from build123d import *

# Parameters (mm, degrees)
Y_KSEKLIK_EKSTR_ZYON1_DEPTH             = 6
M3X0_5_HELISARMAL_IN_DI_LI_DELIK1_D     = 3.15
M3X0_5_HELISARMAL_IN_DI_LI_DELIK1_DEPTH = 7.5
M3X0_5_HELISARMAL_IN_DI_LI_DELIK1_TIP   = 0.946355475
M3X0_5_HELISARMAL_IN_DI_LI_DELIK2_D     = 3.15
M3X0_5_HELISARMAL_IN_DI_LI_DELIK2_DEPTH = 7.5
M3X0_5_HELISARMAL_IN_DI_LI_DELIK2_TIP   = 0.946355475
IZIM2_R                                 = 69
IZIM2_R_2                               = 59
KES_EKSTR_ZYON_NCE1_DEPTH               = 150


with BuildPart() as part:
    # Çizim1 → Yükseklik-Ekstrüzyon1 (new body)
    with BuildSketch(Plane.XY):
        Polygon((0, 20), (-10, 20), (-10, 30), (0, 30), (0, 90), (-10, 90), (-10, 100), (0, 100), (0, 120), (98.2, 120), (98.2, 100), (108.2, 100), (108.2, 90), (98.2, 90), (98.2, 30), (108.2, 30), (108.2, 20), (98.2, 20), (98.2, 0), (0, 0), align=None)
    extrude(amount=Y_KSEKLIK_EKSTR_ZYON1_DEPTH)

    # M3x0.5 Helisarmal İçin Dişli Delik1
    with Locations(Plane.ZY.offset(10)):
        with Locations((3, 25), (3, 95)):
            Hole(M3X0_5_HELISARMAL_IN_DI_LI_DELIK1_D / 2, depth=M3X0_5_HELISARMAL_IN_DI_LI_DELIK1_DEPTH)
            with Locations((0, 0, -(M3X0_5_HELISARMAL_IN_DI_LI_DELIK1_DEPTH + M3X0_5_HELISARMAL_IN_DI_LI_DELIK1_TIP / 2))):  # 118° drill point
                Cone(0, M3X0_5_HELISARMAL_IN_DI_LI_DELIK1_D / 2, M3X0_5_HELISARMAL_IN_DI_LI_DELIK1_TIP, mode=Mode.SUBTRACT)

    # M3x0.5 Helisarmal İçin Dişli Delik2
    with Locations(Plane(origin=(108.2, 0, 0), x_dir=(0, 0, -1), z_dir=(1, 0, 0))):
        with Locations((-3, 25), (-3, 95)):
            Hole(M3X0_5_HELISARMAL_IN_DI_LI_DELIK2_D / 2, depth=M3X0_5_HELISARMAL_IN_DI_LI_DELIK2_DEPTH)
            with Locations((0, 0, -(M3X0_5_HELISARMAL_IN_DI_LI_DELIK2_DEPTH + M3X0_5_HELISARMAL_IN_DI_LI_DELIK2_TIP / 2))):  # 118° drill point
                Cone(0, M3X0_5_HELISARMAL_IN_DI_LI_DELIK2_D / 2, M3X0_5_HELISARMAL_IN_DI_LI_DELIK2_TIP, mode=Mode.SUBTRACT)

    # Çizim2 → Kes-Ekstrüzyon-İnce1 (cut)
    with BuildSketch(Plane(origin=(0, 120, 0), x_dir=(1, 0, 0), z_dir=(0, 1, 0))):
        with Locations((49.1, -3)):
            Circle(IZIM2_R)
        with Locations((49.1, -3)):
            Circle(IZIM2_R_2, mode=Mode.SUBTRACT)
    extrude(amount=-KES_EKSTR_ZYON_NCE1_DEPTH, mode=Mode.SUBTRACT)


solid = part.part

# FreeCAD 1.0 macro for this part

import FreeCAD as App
import Part
import Sketcher

doc = App.newDocument("Part")
body = doc.addObject("PartDesign::Body", "Body")

# Sketch on XY plane
sketch1 = body.newObject("Sketcher::SketchObject", "Sketch")
sketch1.AttachmentSupport = (doc.getObject("XY_Plane"), [""])
sketch1.MapMode = "FlatFace"
sketch1.addGeometry([
    Part.LineSegment(App.Vector(-10, 20, 0), App.Vector(0, 20, 0)),  # 0
    Part.LineSegment(App.Vector(0, 20, 0), App.Vector(0, 0, 0)),  # 1
    Part.LineSegment(App.Vector(0, 0, 0), App.Vector(98, 0, 0)),  # 2
    Part.LineSegment(App.Vector(98, 0, 0), App.Vector(98, 20, 0)),  # 3
    Part.LineSegment(App.Vector(98, 20, 0), App.Vector(108, 20, 0)),  # 4
    Part.LineSegment(App.Vector(108, 20, 0), App.Vector(108, 30, 0)),  # 5
    Part.LineSegment(App.Vector(108, 30, 0), App.Vector(98, 30, 0)),  # 6
    Part.LineSegment(App.Vector(98, 30, 0), App.Vector(98, 90, 0)),  # 7
    Part.LineSegment(App.Vector(98, 90, 0), App.Vector(108, 90, 0)),  # 8
    Part.LineSegment(App.Vector(108, 90, 0), App.Vector(108, 100, 0)),  # 9
    Part.LineSegment(App.Vector(108, 100, 0), App.Vector(98, 100, 0)),  # 10
    Part.LineSegment(App.Vector(98, 100, 0), App.Vector(98, 120, 0)),  # 11
    Part.LineSegment(App.Vector(98, 120, 0), App.Vector(0, 120, 0)),  # 12
    Part.LineSegment(App.Vector(0, 120, 0), App.Vector(0, 100, 0)),  # 13
    Part.LineSegment(App.Vector(0, 100, 0), App.Vector(-10, 100, 0)),  # 14
    Part.LineSegment(App.Vector(-10, 100, 0), App.Vector(-10, 90, 0)),  # 15
    Part.LineSegment(App.Vector(-10, 90, 0), App.Vector(0, 90, 0)),  # 16
    Part.LineSegment(App.Vector(0, 90, 0), App.Vector(0, 30, 0)),  # 17
    Part.LineSegment(App.Vector(0, 30, 0), App.Vector(-10, 30, 0)),  # 18
    Part.LineSegment(App.Vector(-10, 30, 0), App.Vector(-10, 20, 0)),  # 19
], False)
sketch1.addConstraint([
    Sketcher.Constraint("Coincident", 0, 2, 1, 1),
    Sketcher.Constraint("Coincident", 1, 2, 2, 1),
    Sketcher.Constraint("Coincident", 2, 2, 3, 1),
    Sketcher.Constraint("Coincident", 3, 2, 4, 1),
    Sketcher.Constraint("Coincident", 4, 2, 5, 1),
    Sketcher.Constraint("Coincident", 5, 2, 6, 1),
    Sketcher.Constraint("Coincident", 6, 2, 7, 1),
    Sketcher.Constraint("Coincident", 7, 2, 8, 1),
    Sketcher.Constraint("Coincident", 8, 2, 9, 1),
    Sketcher.Constraint("Coincident", 9, 2, 10, 1),
    Sketcher.Constraint("Coincident", 10, 2, 11, 1),
    Sketcher.Constraint("Coincident", 11, 2, 12, 1),
    Sketcher.Constraint("Coincident", 12, 2, 13, 1),
    Sketcher.Constraint("Coincident", 13, 2, 14, 1),
    Sketcher.Constraint("Coincident", 14, 2, 15, 1),
    Sketcher.Constraint("Coincident", 15, 2, 16, 1),
    Sketcher.Constraint("Coincident", 16, 2, 17, 1),
    Sketcher.Constraint("Coincident", 17, 2, 18, 1),
    Sketcher.Constraint("Coincident", 18, 2, 19, 1),
    Sketcher.Constraint("Coincident", 19, 2, 0, 1),
    Sketcher.Constraint("Horizontal", 0),
    Sketcher.Constraint("Vertical", 1),
    Sketcher.Constraint("Horizontal", 2),
    Sketcher.Constraint("Vertical", 3),
    Sketcher.Constraint("Horizontal", 4),
    Sketcher.Constraint("Vertical", 5),
    Sketcher.Constraint("Horizontal", 6),
    Sketcher.Constraint("Vertical", 7),
    Sketcher.Constraint("Horizontal", 8),
    Sketcher.Constraint("Vertical", 9),
    Sketcher.Constraint("Horizontal", 10),
    Sketcher.Constraint("Vertical", 11),
    Sketcher.Constraint("Horizontal", 12),
    Sketcher.Constraint("Vertical", 13),
    Sketcher.Constraint("Horizontal", 14),
    Sketcher.Constraint("Vertical", 15),
    Sketcher.Constraint("Horizontal", 16),
    Sketcher.Constraint("Vertical", 17),
    Sketcher.Constraint("Horizontal", 18),
    Sketcher.Constraint("Vertical", 19),
    Sketcher.Constraint("Coincident", 1, 2, -1, 1),
    Sketcher.Constraint("PointOnObject", 12, 2, -2),
    Sketcher.Constraint("PointOnObject", 16, 2, -2),
    Sketcher.Constraint("Horizontal", 0, 2, 3, 2),
    Sketcher.Constraint("Horizontal", 10, 2, 13, 2),
    Sketcher.Constraint("Horizontal", 8, 2, 15, 2),
    Sketcher.Constraint("Horizontal", 6, 2, 17, 2),
    Sketcher.Constraint("Vertical", 3, 2, 6, 2),
    Sketcher.Constraint("Vertical", 5, 2, 8, 2),
    Sketcher.Constraint("Vertical", 7, 2, 10, 2),
    Sketcher.Constraint("Vertical", 15, 2, 18, 2),
    Sketcher.Constraint("Equal", 0, 4),
    Sketcher.Constraint("Equal", 18, 5),
    Sketcher.Constraint("Equal", 5, 9),
    Sketcher.Constraint("Equal", 3, 11),
    Sketcher.Constraint("DistanceX", 0, 1, 0, 2, 10.0),
    Sketcher.Constraint("DistanceY", 1, 2, 1, 1, 20.0),
    Sketcher.Constraint("DistanceY", 7, 1, 7, 2, 60.0),
    Sketcher.Constraint("DistanceX", 2, 1, 2, 2, 98.2),
])
pad1 = body.newObject("PartDesign::Pad", "Pad")
pad1.Profile = sketch1
pad1.Length = 6

# Sketch on YZ plane
sketch2 = body.newObject("Sketcher::SketchObject", "Sketch001")
sketch2.AttachmentSupport = (doc.getObject("YZ_Plane"), [""])
sketch2.MapMode = "FlatFace"
sketch2.AttachmentOffset = App.Placement(App.Vector(0, 0, -10), App.Rotation())
sketch2.addGeometry([
    Part.Circle(App.Vector(25, 3, 0), App.Vector(0, 0, 1), 1.6),
    Part.Circle(App.Vector(95, 3, 0), App.Vector(0, 0, 1), 1.6),
], False)
sketch2.addConstraint([
    Sketcher.Constraint("Equal", 0, 1),
    Sketcher.Constraint("Horizontal", 0, 3, 1, 3),
    Sketcher.Constraint("Diameter", 0, 3.15),
    Sketcher.Constraint("DistanceX", -1, 1, 0, 3, 25.0),
    Sketcher.Constraint("DistanceY", -1, 1, 0, 3, 3.0),
    Sketcher.Constraint("DistanceX", -1, 1, 1, 3, 95.0),
])
doc.recompute()
hole = body.newObject("PartDesign::Hole", "Hole")
hole.Profile = sketch2
hole.ThreadType = "None"
hole.Diameter = 3.15
hole.DepthType = "Dimension"
hole.Depth = 7.5
hole.DrillPoint = "Angled"
hole.DrillPointAngle = 118
hole.Reversed = True

# Sketch on YZ plane
sketch3 = body.newObject("Sketcher::SketchObject", "Sketch002")
sketch3.AttachmentSupport = (doc.getObject("YZ_Plane"), [""])
sketch3.MapMode = "FlatFace"
sketch3.AttachmentOffset = App.Placement(App.Vector(0, 0, 108.2), App.Rotation())
sketch3.addGeometry([
    Part.Circle(App.Vector(25, 3, 0), App.Vector(0, 0, 1), 1.6),
    Part.Circle(App.Vector(95, 3, 0), App.Vector(0, 0, 1), 1.6),
], False)
sketch3.addConstraint([
    Sketcher.Constraint("Equal", 0, 1),
    Sketcher.Constraint("Horizontal", 0, 3, 1, 3),
    Sketcher.Constraint("Diameter", 0, 3.15),
    Sketcher.Constraint("DistanceX", -1, 1, 0, 3, 25.0),
    Sketcher.Constraint("DistanceY", -1, 1, 0, 3, 3.0),
    Sketcher.Constraint("DistanceX", -1, 1, 1, 3, 95.0),
])
doc.recompute()
hole2 = body.newObject("PartDesign::Hole", "Hole001")
hole2.Profile = sketch3
hole2.ThreadType = "None"
hole2.Diameter = 3.15
hole2.DepthType = "Dimension"
hole2.Depth = 7.5
hole2.DrillPoint = "Angled"
hole2.DrillPointAngle = 118

# Sketch on XZ plane
sketch4 = body.newObject("Sketcher::SketchObject", "Sketch003")
sketch4.AttachmentSupport = (doc.getObject("XZ_Plane"), [""])
sketch4.MapMode = "FlatFace"
sketch4.AttachmentOffset = App.Placement(App.Vector(0, 0, -120), App.Rotation())
sketch4.addGeometry([
    Part.Circle(App.Vector(49, 3, 0), App.Vector(0, 0, 1), 69),
    Part.Circle(App.Vector(49, 3, 0), App.Vector(0, 0, 1), 59),
], False)
sketch4.addConstraint([
    Sketcher.Constraint("Coincident", 1, 3, 0, 3),
    Sketcher.Constraint("Diameter", 0, 138.0),
    Sketcher.Constraint("Diameter", 1, 118.0),
    Sketcher.Constraint("DistanceY", -1, 1, 0, 3, 3.0),
    Sketcher.Constraint("DistanceX", -1, 1, 0, 3, 49.1),
])
pocket1 = body.newObject("PartDesign::Pocket", "Pocket")
pocket1.Profile = sketch4
pocket1.Length = 150
pocket1.Reversed = True

doc.recompute()
